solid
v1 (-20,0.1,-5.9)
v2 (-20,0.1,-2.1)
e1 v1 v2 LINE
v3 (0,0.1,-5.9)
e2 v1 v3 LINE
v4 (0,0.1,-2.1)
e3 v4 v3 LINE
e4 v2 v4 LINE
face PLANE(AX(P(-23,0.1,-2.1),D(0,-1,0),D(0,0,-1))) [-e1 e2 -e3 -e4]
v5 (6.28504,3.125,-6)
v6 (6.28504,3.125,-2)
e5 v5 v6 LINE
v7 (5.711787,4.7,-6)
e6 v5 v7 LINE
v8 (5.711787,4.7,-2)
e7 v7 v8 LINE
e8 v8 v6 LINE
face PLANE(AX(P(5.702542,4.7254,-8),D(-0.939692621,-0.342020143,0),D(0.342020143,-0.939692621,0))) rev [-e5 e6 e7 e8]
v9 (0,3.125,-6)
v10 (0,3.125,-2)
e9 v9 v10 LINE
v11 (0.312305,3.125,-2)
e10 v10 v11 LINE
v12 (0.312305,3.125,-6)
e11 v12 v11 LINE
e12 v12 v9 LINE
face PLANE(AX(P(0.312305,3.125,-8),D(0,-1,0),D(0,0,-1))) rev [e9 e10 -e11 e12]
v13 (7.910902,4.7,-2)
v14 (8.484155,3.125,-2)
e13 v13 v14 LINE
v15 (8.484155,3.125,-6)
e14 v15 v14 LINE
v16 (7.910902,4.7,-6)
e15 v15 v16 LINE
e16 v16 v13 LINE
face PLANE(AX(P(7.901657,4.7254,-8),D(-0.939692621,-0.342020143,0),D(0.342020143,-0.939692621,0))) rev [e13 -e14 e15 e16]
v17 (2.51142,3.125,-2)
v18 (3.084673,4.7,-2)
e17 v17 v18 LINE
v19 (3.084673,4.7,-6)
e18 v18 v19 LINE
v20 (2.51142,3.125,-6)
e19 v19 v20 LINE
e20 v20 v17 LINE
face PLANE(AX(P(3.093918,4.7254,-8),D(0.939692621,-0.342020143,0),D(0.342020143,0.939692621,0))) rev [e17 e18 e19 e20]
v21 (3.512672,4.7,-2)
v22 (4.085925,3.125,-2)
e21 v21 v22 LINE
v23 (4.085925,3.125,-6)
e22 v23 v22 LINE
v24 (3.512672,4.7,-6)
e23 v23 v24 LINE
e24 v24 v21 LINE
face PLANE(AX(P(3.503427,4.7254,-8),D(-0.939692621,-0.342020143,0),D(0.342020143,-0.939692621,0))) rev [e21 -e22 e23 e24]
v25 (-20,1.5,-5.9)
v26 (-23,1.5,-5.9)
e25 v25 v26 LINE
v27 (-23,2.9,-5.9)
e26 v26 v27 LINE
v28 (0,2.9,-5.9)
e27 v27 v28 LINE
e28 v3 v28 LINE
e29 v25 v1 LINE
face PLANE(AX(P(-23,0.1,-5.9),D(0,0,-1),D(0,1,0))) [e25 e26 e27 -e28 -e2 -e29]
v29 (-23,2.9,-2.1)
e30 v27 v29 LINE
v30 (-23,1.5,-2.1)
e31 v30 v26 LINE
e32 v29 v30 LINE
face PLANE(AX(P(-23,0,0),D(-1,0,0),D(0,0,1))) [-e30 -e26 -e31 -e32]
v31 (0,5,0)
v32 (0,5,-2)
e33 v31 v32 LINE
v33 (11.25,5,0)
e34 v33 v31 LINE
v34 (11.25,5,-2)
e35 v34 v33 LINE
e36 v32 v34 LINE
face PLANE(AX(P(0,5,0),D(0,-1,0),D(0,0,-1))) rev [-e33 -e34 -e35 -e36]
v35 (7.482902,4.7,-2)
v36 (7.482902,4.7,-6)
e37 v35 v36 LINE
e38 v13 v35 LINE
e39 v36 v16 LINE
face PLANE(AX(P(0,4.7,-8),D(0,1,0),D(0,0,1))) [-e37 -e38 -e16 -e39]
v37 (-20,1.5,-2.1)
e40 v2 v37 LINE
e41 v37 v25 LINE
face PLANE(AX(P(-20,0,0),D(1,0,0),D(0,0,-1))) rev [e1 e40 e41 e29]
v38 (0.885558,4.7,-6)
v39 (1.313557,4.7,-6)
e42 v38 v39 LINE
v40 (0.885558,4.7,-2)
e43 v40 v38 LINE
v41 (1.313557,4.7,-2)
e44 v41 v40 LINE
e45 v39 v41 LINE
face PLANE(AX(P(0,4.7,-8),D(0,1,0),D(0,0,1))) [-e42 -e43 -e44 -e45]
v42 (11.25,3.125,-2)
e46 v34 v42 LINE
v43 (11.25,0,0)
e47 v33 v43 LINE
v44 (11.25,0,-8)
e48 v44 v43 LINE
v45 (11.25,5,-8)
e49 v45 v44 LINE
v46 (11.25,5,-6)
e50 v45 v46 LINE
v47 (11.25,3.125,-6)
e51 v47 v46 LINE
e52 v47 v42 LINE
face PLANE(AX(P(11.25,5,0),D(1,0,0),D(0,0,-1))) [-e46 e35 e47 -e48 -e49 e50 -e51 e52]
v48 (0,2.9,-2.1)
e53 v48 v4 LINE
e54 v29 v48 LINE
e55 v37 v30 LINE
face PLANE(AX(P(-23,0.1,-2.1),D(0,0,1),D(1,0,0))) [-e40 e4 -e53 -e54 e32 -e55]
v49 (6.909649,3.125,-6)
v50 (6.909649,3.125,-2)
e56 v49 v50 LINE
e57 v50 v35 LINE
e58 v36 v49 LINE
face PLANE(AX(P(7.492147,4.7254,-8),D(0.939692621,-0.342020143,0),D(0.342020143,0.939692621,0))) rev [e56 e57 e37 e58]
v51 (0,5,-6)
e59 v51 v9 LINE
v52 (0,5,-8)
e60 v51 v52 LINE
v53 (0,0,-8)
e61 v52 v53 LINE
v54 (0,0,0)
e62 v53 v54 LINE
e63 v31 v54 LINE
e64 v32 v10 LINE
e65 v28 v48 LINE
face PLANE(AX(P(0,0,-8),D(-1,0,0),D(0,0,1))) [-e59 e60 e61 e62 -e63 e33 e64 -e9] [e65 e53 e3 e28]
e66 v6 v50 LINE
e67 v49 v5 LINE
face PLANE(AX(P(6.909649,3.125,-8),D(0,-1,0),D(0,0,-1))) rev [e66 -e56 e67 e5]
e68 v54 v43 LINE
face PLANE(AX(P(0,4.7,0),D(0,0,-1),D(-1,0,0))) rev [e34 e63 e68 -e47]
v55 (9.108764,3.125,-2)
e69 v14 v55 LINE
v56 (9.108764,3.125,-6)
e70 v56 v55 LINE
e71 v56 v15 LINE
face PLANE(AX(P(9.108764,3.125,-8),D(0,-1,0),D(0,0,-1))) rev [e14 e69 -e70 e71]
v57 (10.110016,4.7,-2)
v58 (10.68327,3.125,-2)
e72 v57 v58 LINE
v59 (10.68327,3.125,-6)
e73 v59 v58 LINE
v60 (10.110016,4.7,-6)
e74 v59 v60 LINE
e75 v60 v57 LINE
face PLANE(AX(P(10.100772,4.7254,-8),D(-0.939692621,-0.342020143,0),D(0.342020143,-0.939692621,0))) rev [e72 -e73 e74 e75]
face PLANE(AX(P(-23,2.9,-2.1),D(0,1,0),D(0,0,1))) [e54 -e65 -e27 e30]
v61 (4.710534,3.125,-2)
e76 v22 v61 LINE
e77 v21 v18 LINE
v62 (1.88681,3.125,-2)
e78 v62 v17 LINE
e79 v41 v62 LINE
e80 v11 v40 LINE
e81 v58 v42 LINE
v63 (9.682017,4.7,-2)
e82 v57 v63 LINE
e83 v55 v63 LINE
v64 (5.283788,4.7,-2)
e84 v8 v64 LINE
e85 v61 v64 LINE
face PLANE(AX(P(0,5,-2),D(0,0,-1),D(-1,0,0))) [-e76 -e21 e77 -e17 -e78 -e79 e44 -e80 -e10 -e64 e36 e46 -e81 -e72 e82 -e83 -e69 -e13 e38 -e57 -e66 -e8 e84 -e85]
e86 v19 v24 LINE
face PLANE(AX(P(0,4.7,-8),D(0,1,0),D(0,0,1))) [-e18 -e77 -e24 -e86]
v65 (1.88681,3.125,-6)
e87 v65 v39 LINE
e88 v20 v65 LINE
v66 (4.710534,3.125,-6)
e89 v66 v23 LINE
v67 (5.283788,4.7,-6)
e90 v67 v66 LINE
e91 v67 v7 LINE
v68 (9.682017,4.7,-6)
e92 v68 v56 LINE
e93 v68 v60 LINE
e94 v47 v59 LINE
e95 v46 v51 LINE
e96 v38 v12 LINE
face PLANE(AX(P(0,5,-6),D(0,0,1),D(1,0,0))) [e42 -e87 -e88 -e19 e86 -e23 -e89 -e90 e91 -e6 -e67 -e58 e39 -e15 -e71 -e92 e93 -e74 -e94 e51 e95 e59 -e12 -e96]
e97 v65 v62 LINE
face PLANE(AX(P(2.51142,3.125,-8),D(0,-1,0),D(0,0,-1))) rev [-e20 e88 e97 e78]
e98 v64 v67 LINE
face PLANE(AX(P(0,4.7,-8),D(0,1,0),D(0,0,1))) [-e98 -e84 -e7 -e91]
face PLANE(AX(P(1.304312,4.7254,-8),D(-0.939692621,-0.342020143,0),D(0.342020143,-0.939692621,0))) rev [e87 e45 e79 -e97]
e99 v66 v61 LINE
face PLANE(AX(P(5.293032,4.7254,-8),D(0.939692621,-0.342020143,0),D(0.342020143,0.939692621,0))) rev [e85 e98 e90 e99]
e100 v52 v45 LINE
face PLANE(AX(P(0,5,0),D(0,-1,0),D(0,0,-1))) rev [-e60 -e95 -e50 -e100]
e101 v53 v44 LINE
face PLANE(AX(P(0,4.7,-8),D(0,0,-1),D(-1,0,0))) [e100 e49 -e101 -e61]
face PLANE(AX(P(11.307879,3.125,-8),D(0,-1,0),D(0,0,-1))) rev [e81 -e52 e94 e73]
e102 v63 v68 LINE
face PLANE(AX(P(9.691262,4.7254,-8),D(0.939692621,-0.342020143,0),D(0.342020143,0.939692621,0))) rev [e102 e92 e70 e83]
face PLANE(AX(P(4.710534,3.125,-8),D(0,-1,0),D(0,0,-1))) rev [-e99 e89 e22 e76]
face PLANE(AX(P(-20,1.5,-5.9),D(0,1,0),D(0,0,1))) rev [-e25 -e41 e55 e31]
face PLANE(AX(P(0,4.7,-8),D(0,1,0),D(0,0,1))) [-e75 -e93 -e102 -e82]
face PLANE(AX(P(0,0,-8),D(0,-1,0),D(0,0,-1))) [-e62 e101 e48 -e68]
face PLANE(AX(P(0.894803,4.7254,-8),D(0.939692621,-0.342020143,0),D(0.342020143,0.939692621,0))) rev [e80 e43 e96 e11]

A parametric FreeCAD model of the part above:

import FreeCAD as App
import Part
import Sketcher
from FreeCAD import Vector
Q = App.Units.Quantity

doc = App.newDocument("Part")
params = doc.addObject("Spreadsheet::Sheet", "Params")
for row, (alias, value) in enumerate([
    ("sketch1_width", "12 mm"),
    ("sketch1_height", "4.7 mm"),
    ("pad1_length", "8 mm"),
    ("linearpattern_pitch", "2.199115 mm"),
    ("sketch3_width", "12 mm"),
    ("sketch3_height", "2 mm"),
    ("pad2_length", "5 mm"),
    ("sketch4_height", "8 mm"),
    ("sketch4_width", "0.75 mm"),
    ("pocket2_length", "5 mm"),
    ("sketch5_width", "2.8 mm"),
    ("sketch5_height", "3.8 mm"),
    ("pad3_length", "23 mm"),
    ("sketch6_width", "1.4 mm"),
    ("sketch6_height", "3.8 mm"),
    ("pocket3_length", "3 mm"),
], start=1):
    params.set(f"A{row}", alias)
    params.set(f"B{row}", "=" + value)
    params.setAlias(f"B{row}", alias)

body = doc.addObject("PartDesign::Body", "Body")

# Sketch on XY plane
sketch1 = body.newObject("Sketcher::SketchObject", "Sketch")
sketch1.AttachmentSupport = (doc.getObject("XY_Plane"), [""])
sketch1.MapMode = "FlatFace"
sketch1.addGeometry([
    Part.LineSegment(Vector(0, 4.7, 0), Vector(0, 0, 0)),
    Part.LineSegment(Vector(0, 0, 0), Vector(12, 0, 0)),
    Part.LineSegment(Vector(12, 0, 0), Vector(12, 4.7, 0)),
    Part.LineSegment(Vector(12, 4.7, 0), Vector(0, 4.7, 0)),
], False)
sketch1.addConstraint([
    Sketcher.Constraint("Coincident", 0, 2, 1, 1),
    Sketcher.Constraint("Coincident", 1, 2, 2, 1),
    Sketcher.Constraint("Coincident", 2, 2, 3, 1),
    Sketcher.Constraint("Coincident", 3, 2, 0, 1),
    Sketcher.Constraint("Vertical", 0),
    Sketcher.Constraint("Horizontal", 1),
    Sketcher.Constraint("Vertical", 2),
    Sketcher.Constraint("Horizontal", 3),
    Sketcher.Constraint("Coincident", 0, 2, -1, 1),
    Sketcher.Constraint("DistanceX", 1, 1, 1, 2, 12.0),
    Sketcher.Constraint("DistanceY", 0, 2, 0, 1, 4.7),
])
sketch1.setExpression("Constraints[9]", "Params.sketch1_width")
sketch1.setExpression("Constraints[10]", "Params.sketch1_height")
pad1 = body.newObject("PartDesign::Pad", "Pad")
pad1.Profile = sketch1
pad1.setExpression("Length", "Params.pad1_length")
pad1.Reversed = True

# Sketch on XY plane
sketch2 = body.newObject("Sketcher::SketchObject", "Sketch001")
sketch2.AttachmentSupport = (doc.getObject("XY_Plane"), [""])
sketch2.MapMode = "FlatFace"
sketch2.addGeometry([
    Part.LineSegment(Vector(-0.3, 3.1, 0), Vector(0.3, 3.1, 0)),
    Part.LineSegment(Vector(0.3, 3.1, 0), Vector(0.9, 4.7, 0)),
    Part.LineSegment(Vector(0.9, 4.7, 0), Vector(-0.9, 4.7, 0)),
    Part.LineSegment(Vector(-0.9, 4.7, 0), Vector(-0.3, 3.1, 0)),
], False)
sketch2.addConstraint([
    Sketcher.Constraint("Coincident", 0, 2, 1, 1),
    Sketcher.Constraint("Coincident", 1, 2, 2, 1),
    Sketcher.Constraint("Coincident", 2, 2, 3, 1),
    Sketcher.Constraint("Coincident", 3, 2, 0, 1),
    Sketcher.Constraint("Horizontal", 0),
    Sketcher.Constraint("Horizontal", 2),
    Sketcher.Constraint("Equal", 1, 3),
    Sketcher.Constraint("Angle", 1, Q("70 deg")),
    Sketcher.Constraint("DistanceY", -1, 1, 0, 2, 3.125),
    Sketcher.Constraint("DistanceX", 0, 1, 0, 2, 0.62461),
    Sketcher.Constraint("DistanceY", -1, 1, 1, 2, 4.7254),
    Sketcher.Constraint("DistanceX", -1, 1, 0, 2, 0.312305),
])
pocket1 = body.newObject("PartDesign::Pocket", "Pocket")
pocket1.Profile = sketch2
pocket1.Type = "ThroughAll"
doc.recompute()

linearpattern = body.newObject("PartDesign::LinearPattern", "LinearPattern")
linearpattern.Originals = [pocket1]
linearpattern.Direction = (doc.getObject("X_Axis"), [""])
linearpattern.Mode = "offset"
linearpattern.setExpression("Offset", "Params.linearpattern_pitch")
linearpattern.Occurrences = 6
body.Tip = linearpattern

# Sketch on XZ plane
sketch3 = body.newObject("Sketcher::SketchObject", "Sketch002")
sketch3.AttachmentSupport = (doc.getObject("XZ_Plane"), [""])
sketch3.MapMode = "FlatFace"
sketch3.addGeometry([
    Part.LineSegment(Vector(0, 0, 0), Vector(0, -2, 0)),  # 0
    Part.LineSegment(Vector(0, -2, 0), Vector(12, -2, 0)),  # 1
    Part.LineSegment(Vector(12, -2, 0), Vector(12, 0, 0)),  # 2
    Part.LineSegment(Vector(12, 0, 0), Vector(0, 0, 0)),  # 3
    Part.LineSegment(Vector(0, -6, 0), Vector(0, -8, 0)),  # 4
    Part.LineSegment(Vector(0, -8, 0), Vector(12, -8, 0)),  # 5
    Part.LineSegment(Vector(12, -8, 0), Vector(12, -6, 0)),  # 6
    Part.LineSegment(Vector(12, -6, 0), Vector(0, -6, 0)),  # 7
], False)
sketch3.addConstraint([
    Sketcher.Constraint("Coincident", 0, 2, 1, 1),
    Sketcher.Constraint("Coincident", 1, 2, 2, 1),
    Sketcher.Constraint("Coincident", 2, 2, 3, 1),
    Sketcher.Constraint("Coincident", 3, 2, 0, 1),
    Sketcher.Constraint("Coincident", 4, 2, 5, 1),
    Sketcher.Constraint("Coincident", 5, 2, 6, 1),
    Sketcher.Constraint("Coincident", 6, 2, 7, 1),
    Sketcher.Constraint("Coincident", 7, 2, 4, 1),
    Sketcher.Constraint("Vertical", 0),
    Sketcher.Constraint("Horizontal", 1),
    Sketcher.Constraint("Vertical", 2),
    Sketcher.Constraint("Horizontal", 3),
    Sketcher.Constraint("Vertical", 4),
    Sketcher.Constraint("Horizontal", 5),
    Sketcher.Constraint("Vertical", 6),
    Sketcher.Constraint("Horizontal", 7),
    Sketcher.Constraint("Coincident", 3, 2, -1, 1),
    Sketcher.Constraint("PointOnObject", 4, 2, -2),
    Sketcher.Constraint("Vertical", 2, 2, 5, 2),
    Sketcher.Constraint("Equal", 2, 4),
    Sketcher.Constraint("DistanceX", 1, 1, 1, 2, 12.0),
    Sketcher.Constraint("DistanceY", 0, 2, 0, 1, 2.0),
    Sketcher.Constraint("DistanceY", 4, 2, -1, 1, 8.0),
])
sketch3.setExpression("Constraints[20]", "Params.sketch3_width")
sketch3.setExpression("Constraints[21]", "Params.sketch3_height")
pad2 = body.newObject("PartDesign::Pad", "Pad001")
pad2.Profile = sketch3
pad2.setExpression("Length", "Params.pad2_length")
pad2.Reversed = True

# Sketch on XZ plane
sketch4 = body.newObject("Sketcher::SketchObject", "Sketch003")
sketch4.AttachmentSupport = (doc.getObject("XZ_Plane"), [""])
sketch4.MapMode = "FlatFace"
sketch4.addGeometry([
    Part.LineSegment(Vector(11.2, -8, 0), Vector(11.2, 0, 0)),
    Part.LineSegment(Vector(11.2, 0, 0), Vector(12, 0, 0)),
    Part.LineSegment(Vector(12, 0, 0), Vector(12, -8, 0)),
    Part.LineSegment(Vector(12, -8, 0), Vector(11.2, -8, 0)),
], False)
sketch4.addConstraint([
    Sketcher.Constraint("Coincident", 0, 2, 1, 1),
    Sketcher.Constraint("Coincident", 1, 2, 2, 1),
    Sketcher.Constraint("Coincident", 2, 2, 3, 1),
    Sketcher.Constraint("Coincident", 3, 2, 0, 1),
    Sketcher.Constraint("Vertical", 0),
    Sketcher.Constraint("Horizontal", 1),
    Sketcher.Constraint("Vertical", 2),
    Sketcher.Constraint("Horizontal", 3),
    Sketcher.Constraint("PointOnObject", 0, 2, -1),
    Sketcher.Constraint("DistanceY", 0, 1, 0, 2, 8.0),
    Sketcher.Constraint("DistanceX", -1, 1, 1, 2, 12.0),
    Sketcher.Constraint("DistanceX", 1, 1, 1, 2, 0.75),
])
sketch4.setExpression("Constraints[9]", "Params.sketch4_height")
sketch4.setExpression("Constraints[11]", "Params.sketch4_width")
pocket2 = body.newObject("PartDesign::Pocket", "Pocket001")
pocket2.Profile = sketch4
pocket2.setExpression("Length", "Params.pocket2_length")

# Sketch on YZ plane
sketch5 = body.newObject("Sketcher::SketchObject", "Sketch004")
sketch5.AttachmentSupport = (doc.getObject("YZ_Plane"), [""])
sketch5.MapMode = "FlatFace"
sketch5.addGeometry([
    Part.LineSegment(Vector(2.9, -2.1, 0), Vector(0.1, -2.1, 0)),
    Part.LineSegment(Vector(0.1, -2.1, 0), Vector(0.1, -5.9, 0)),
    Part.LineSegment(Vector(0.1, -5.9, 0), Vector(2.9, -5.9, 0)),
    Part.LineSegment(Vector(2.9, -5.9, 0), Vector(2.9, -2.1, 0)),
], False)
sketch5.addConstraint([
    Sketcher.Constraint("Coincident", 0, 2, 1, 1),
    Sketcher.Constraint("Coincident", 1, 2, 2, 1),
    Sketcher.Constraint("Coincident", 2, 2, 3, 1),
    Sketcher.Constraint("Coincident", 3, 2, 0, 1),
    Sketcher.Constraint("Horizontal", 0),
    Sketcher.Constraint("Vertical", 1),
    Sketcher.Constraint("Horizontal", 2),
    Sketcher.Constraint("Vertical", 3),
    Sketcher.Constraint("DistanceX", 0, 2, 0, 1, 2.8),
    Sketcher.Constraint("DistanceY", 1, 2, 1, 1, 3.8),
    Sketcher.Constraint("DistanceX", -1, 1, 0, 2, 0.1),
    Sketcher.Constraint("DistanceY", 0, 2, -1, 1, 2.1),
])
sketch5.setExpression("Constraints[8]", "Params.sketch5_width")
sketch5.setExpression("Constraints[9]", "Params.sketch5_height")
pad3 = body.newObject("PartDesign::Pad", "Pad002")
pad3.Profile = sketch5
pad3.setExpression("Length", "Params.pad3_length")
pad3.Reversed = True

# Sketch on YZ plane
sketch6 = body.newObject("Sketcher::SketchObject", "Sketch005")
sketch6.AttachmentSupport = (doc.getObject("YZ_Plane"), [""])
sketch6.MapMode = "FlatFace"
sketch6.AttachmentOffset = App.Placement(Vector(0, 0, -23), App.Rotation())
sketch6.addGeometry([
    Part.LineSegment(Vector(1.5, -5.9, 0), Vector(0.1, -5.9, 0)),
    Part.LineSegment(Vector(0.1, -5.9, 0), Vector(0.1, -2.1, 0)),
    Part.LineSegment(Vector(0.1, -2.1, 0), Vector(1.5, -2.1, 0)),
    Part.LineSegment(Vector(1.5, -2.1, 0), Vector(1.5, -5.9, 0)),
], False)
sketch6.addConstraint([
    Sketcher.Constraint("Coincident", 0, 2, 1, 1),
    Sketcher.Constraint("Coincident", 1, 2, 2, 1),
    Sketcher.Constraint("Coincident", 2, 2, 3, 1),
    Sketcher.Constraint("Coincident", 3, 2, 0, 1),
    Sketcher.Constraint("Horizontal", 0),
    Sketcher.Constraint("Vertical", 1),
    Sketcher.Constraint("Horizontal", 2),
    Sketcher.Constraint("Vertical", 3),
    Sketcher.Constraint("DistanceX", 0, 2, 0, 1, 1.4),
    Sketcher.Constraint("DistanceY", 1, 1, 1, 2, 3.8),
    Sketcher.Constraint("DistanceX", -1, 1, 0, 2, 0.1),
    Sketcher.Constraint("DistanceY", 0, 2, -1, 1, 5.9),
])
sketch6.setExpression("Constraints[8]", "Params.sketch6_width")
sketch6.setExpression("Constraints[9]", "Params.sketch6_height")
pocket3 = body.newObject("PartDesign::Pocket", "Pocket002")
pocket3.Profile = sketch6
pocket3.setExpression("Length", "Params.pocket3_length")
pocket3.Reversed = True

doc.recompute()
